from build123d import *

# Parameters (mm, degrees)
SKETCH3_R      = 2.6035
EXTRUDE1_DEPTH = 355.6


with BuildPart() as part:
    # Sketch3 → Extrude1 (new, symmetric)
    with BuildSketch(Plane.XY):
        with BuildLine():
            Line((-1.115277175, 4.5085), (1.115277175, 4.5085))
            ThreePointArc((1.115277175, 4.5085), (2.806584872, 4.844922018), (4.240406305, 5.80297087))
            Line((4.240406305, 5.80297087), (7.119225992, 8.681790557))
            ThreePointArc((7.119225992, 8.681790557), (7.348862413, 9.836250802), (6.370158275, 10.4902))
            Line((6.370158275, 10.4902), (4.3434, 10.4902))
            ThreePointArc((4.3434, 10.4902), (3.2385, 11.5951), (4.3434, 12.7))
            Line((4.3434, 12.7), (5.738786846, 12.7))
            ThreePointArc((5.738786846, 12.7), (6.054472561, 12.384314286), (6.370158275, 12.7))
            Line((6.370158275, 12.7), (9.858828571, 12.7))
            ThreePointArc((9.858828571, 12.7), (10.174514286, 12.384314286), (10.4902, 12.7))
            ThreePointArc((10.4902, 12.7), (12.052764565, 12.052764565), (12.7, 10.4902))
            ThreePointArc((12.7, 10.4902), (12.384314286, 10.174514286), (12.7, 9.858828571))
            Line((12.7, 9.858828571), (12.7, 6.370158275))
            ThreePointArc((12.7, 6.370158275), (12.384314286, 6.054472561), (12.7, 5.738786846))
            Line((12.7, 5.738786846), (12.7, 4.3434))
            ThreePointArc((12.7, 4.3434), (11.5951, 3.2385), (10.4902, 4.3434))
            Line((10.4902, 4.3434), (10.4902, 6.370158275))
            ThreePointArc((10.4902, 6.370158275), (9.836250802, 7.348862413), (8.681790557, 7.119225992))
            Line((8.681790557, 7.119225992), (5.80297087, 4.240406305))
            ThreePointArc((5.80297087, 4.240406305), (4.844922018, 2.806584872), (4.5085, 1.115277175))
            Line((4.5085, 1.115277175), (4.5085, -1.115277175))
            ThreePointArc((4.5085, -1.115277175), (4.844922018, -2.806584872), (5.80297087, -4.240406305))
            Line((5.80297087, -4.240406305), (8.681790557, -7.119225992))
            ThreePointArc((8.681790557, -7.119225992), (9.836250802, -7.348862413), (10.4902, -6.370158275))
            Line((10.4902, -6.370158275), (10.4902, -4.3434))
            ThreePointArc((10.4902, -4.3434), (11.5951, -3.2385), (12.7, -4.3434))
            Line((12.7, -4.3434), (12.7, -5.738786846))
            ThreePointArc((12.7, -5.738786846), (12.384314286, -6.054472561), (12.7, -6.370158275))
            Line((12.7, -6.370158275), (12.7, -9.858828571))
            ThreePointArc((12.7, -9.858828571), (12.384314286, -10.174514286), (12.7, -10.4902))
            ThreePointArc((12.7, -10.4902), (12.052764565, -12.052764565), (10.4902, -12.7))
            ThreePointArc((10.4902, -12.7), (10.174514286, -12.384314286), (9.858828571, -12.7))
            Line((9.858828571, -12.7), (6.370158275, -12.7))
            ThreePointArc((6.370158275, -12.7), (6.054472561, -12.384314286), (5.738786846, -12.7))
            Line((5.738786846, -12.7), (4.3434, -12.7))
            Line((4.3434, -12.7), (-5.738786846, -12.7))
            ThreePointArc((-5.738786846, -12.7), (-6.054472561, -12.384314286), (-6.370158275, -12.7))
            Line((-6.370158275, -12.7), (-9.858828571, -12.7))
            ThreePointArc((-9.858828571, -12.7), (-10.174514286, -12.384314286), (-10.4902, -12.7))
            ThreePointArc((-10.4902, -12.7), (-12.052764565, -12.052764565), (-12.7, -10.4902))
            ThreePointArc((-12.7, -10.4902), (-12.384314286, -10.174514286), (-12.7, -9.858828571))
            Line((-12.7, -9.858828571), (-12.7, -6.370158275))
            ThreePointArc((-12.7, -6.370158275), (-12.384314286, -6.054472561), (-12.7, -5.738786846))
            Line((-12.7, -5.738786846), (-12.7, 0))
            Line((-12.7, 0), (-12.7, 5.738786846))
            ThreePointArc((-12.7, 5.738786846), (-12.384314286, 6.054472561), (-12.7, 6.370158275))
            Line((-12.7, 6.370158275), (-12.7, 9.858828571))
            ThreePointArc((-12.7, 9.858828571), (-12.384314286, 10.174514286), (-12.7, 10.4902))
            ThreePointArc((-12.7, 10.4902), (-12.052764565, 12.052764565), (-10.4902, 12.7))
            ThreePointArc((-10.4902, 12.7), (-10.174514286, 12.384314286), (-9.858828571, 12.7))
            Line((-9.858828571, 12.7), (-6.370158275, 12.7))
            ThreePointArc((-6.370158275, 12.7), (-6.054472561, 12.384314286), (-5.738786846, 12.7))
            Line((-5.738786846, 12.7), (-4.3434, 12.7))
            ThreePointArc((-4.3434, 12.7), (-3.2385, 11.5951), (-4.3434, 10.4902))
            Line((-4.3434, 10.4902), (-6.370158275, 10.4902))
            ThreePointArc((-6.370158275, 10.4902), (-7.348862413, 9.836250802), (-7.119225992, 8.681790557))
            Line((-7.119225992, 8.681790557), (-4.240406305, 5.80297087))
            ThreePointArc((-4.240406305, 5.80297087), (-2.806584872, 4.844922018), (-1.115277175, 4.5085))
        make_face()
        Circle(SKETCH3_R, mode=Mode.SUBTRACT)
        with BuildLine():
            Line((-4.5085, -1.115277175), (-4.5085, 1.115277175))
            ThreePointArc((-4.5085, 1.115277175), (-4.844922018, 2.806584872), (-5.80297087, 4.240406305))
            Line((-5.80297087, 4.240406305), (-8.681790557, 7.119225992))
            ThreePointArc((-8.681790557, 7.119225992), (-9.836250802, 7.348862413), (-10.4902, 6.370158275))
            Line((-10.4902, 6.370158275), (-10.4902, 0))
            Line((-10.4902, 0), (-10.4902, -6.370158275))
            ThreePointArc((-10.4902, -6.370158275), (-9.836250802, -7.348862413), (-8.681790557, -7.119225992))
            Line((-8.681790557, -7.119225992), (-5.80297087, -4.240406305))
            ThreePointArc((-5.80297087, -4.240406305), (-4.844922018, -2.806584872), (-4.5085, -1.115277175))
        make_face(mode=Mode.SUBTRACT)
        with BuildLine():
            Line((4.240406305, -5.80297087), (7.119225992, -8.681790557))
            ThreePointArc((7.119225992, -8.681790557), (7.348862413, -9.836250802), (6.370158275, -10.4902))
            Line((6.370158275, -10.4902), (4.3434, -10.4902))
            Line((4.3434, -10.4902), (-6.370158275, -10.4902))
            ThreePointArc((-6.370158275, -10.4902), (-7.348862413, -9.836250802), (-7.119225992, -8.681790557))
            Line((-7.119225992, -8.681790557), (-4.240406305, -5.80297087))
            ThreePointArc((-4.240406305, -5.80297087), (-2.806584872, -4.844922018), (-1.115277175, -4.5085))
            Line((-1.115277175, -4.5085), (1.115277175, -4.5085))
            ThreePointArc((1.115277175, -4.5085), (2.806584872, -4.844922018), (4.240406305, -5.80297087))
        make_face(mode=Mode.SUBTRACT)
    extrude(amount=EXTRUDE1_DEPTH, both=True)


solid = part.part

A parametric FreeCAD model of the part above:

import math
import FreeCAD as App
import Part
import Sketcher
from FreeCAD import Vector
Q = App.Units.Quantity

doc = App.newDocument("Part")
body = doc.addObject("PartDesign::Body", "Body")

# Sketch on XY plane
sketch1 = body.newObject("Sketcher::SketchObject", "Sketch")
sketch1.AttachmentSupport = (doc.getObject("XY_Plane"), [""])
sketch1.MapMode = "FlatFace"
sketch1.addGeometry([
    Part.LineSegment(Vector(1.12, 4.51, 0), Vector(-1.12, 4.51, 0)),  # 0
    Part.ArcOfCircle(Part.Circle(Vector(-1.12, 8.93, 0), Vector(0, 0, 1), 4.42), math.radians(-135), math.radians(-90)),  # 1
    Part.LineSegment(Vector(-4.24, 5.8, 0), Vector(-7.12, 8.68, 0)),  # 2
    Part.ArcOfCircle(Part.Circle(Vector(-6.37, 9.43, 0), Vector(0, 0, 1), 1.06), math.radians(90), math.radians(225)),  # 3
    Part.LineSegment(Vector(-6.37, 10.49, 0), Vector(-4.34, 10.49, 0)),  # 4
    Part.ArcOfCircle(Part.Circle(Vector(-4.34, 11.6, 0), Vector(0, 0, 1), 1.1), math.radians(-90), math.radians(90)),  # 5
    Part.LineSegment(Vector(-4.34, 12.7, 0), Vector(-5.74, 12.7, 0)),  # 6
    Part.ArcOfCircle(Part.Circle(Vector(-6.05, 12.7, 0), Vector(0, 0, 1), 0.32), math.radians(-180), math.radians(0)),  # 7
    Part.LineSegment(Vector(-6.37, 12.7, 0), Vector(-9.86, 12.7, 0)),  # 8
    Part.ArcOfCircle(Part.Circle(Vector(-10.17, 12.7, 0), Vector(0, 0, 1), 0.32), math.radians(-180), math.radians(0)),  # 9
    Part.ArcOfCircle(Part.Circle(Vector(-10.49, 10.49, 0), Vector(0, 0, 1), 2.21), math.radians(90), math.radians(180)),  # 10
    Part.ArcOfCircle(Part.Circle(Vector(-12.7, 10.17, 0), Vector(0, 0, 1), 0.32), math.radians(-90), math.radians(90)),  # 11
    Part.LineSegment(Vector(-12.7, 9.86, 0), Vector(-12.7, 6.37, 0)),  # 12
    Part.ArcOfCircle(Part.Circle(Vector(-12.7, 6.05, 0), Vector(0, 0, 1), 0.32), math.radians(-90), math.radians(90)),  # 13
    Part.LineSegment(Vector(-12.7, 5.74, 0), Vector(-12.7, -5.74, 0)),  # 14
    Part.ArcOfCircle(Part.Circle(Vector(-12.7, -6.05, 0), Vector(0, 0, 1), 0.32), math.radians(-90), math.radians(90)),  # 15
    Part.LineSegment(Vector(-12.7, -6.37, 0), Vector(-12.7, -9.86, 0)),  # 16
    Part.ArcOfCircle(Part.Circle(Vector(-12.7, -10.17, 0), Vector(0, 0, 1), 0.32), math.radians(-90), math.radians(90)),  # 17
    Part.ArcOfCircle(Part.Circle(Vector(-10.49, -10.49, 0), Vector(0, 0, 1), 2.21), math.radians(180), math.radians(270)),  # 18
    Part.ArcOfCircle(Part.Circle(Vector(-10.17, -12.7, 0), Vector(0, 0, 1), 0.32), math.radians(0), math.radians(180)),  # 19
    Part.LineSegment(Vector(-9.86, -12.7, 0), Vector(-6.37, -12.7, 0)),  # 20
    Part.ArcOfCircle(Part.Circle(Vector(-6.05, -12.7, 0), Vector(0, 0, 1), 0.32), math.radians(0), math.radians(180)),  # 21
    Part.LineSegment(Vector(-5.74, -12.7, 0), Vector(5.74, -12.7, 0)),  # 22
    Part.ArcOfCircle(Part.Circle(Vector(6.05, -12.7, 0), Vector(0, 0, 1), 0.32), math.radians(0), math.radians(180)),  # 23
    Part.LineSegment(Vector(6.37, -12.7, 0), Vector(9.86, -12.7, 0)),  # 24
    Part.ArcOfCircle(Part.Circle(Vector(10.17, -12.7, 0), Vector(0, 0, 1), 0.32), math.radians(0), math.radians(180)),  # 25
    Part.ArcOfCircle(Part.Circle(Vector(10.49, -10.49, 0), Vector(0, 0, 1), 2.21), math.radians(-90), math.radians(0)),  # 26
    Part.ArcOfCircle(Part.Circle(Vector(12.7, -10.17, 0), Vector(0, 0, 1), 0.32), math.radians(90), math.radians(270)),  # 27
    Part.LineSegment(Vector(12.7, -9.86, 0), Vector(12.7, -6.37, 0)),  # 28
    Part.ArcOfCircle(Part.Circle(Vector(12.7, -6.05, 0), Vector(0, 0, 1), 0.32), math.radians(90), math.radians(270)),  # 29
    Part.LineSegment(Vector(12.7, -5.74, 0), Vector(12.7, -4.34, 0)),  # 30
    Part.ArcOfCircle(Part.Circle(Vector(11.6, -4.34, 0), Vector(0, 0, 1), 1.1), math.radians(0), math.radians(180)),  # 31
    Part.LineSegment(Vector(10.49, -4.34, 0), Vector(10.49, -6.37, 0)),  # 32
    Part.ArcOfCircle(Part.Circle(Vector(9.43, -6.37, 0), Vector(0, 0, 1), 1.06), math.radians(-135), math.radians(0)),  # 33
    Part.LineSegment(Vector(8.68, -7.12, 0), Vector(5.8, -4.24, 0)),  # 34
    Part.ArcOfCircle(Part.Circle(Vector(8.93, -1.12, 0), Vector(0, 0, 1), 4.42), math.radians(-180), math.radians(-135)),  # 35
    Part.LineSegment(Vector(4.51, -1.12, 0), Vector(4.51, 1.12, 0)),  # 36
    Part.ArcOfCircle(Part.Circle(Vector(8.93, 1.12, 0), Vector(0, 0, 1), 4.42), math.radians(135), math.radians(180)),  # 37
    Part.LineSegment(Vector(5.8, 4.24, 0), Vector(8.68, 7.12, 0)),  # 38
    Part.ArcOfCircle(Part.Circle(Vector(9.43, 6.37, 0), Vector(0, 0, 1), 1.06), math.radians(0), math.radians(135)),  # 39
    Part.LineSegment(Vector(10.49, 6.37, 0), Vector(10.49, 4.34, 0)),  # 40
    Part.ArcOfCircle(Part.Circle(Vector(11.6, 4.34, 0), Vector(0, 0, 1), 1.1), math.radians(180), math.radians(360)),  # 41
    Part.LineSegment(Vector(12.7, 4.34, 0), Vector(12.7, 5.74, 0)),  # 42
    Part.ArcOfCircle(Part.Circle(Vector(12.7, 6.05, 0), Vector(0, 0, 1), 0.32), math.radians(90), math.radians(270)),  # 43
    Part.LineSegment(Vector(12.7, 6.37, 0), Vector(12.7, 9.86, 0)),  # 44
    Part.ArcOfCircle(Part.Circle(Vector(12.7, 10.17, 0), Vector(0, 0, 1), 0.32), math.radians(90), math.radians(270)),  # 45
    Part.ArcOfCircle(Part.Circle(Vector(10.49, 10.49, 0), Vector(0, 0, 1), 2.21), math.radians(0), math.radians(90)),  # 46
    Part.ArcOfCircle(Part.Circle(Vector(10.17, 12.7, 0), Vector(0, 0, 1), 0.32), math.radians(-180), math.radians(0)),  # 47
    Part.LineSegment(Vector(9.86, 12.7, 0), Vector(6.37, 12.7, 0)),  # 48
    Part.ArcOfCircle(Part.Circle(Vector(6.05, 12.7, 0), Vector(0, 0, 1), 0.32), math.radians(-180), math.radians(0)),  # 49
    Part.LineSegment(Vector(5.74, 12.7, 0), Vector(4.34, 12.7, 0)),  # 50
    Part.ArcOfCircle(Part.Circle(Vector(4.34, 11.6, 0), Vector(0, 0, 1), 1.1), math.radians(90), math.radians(270)),  # 51
    Part.LineSegment(Vector(4.34, 10.49, 0), Vector(6.37, 10.49, 0)),  # 52
    Part.ArcOfCircle(Part.Circle(Vector(6.37, 9.43, 0), Vector(0, 0, 1), 1.06), math.radians(-45), math.radians(90)),  # 53
    Part.LineSegment(Vector(7.12, 8.68, 0), Vector(4.24, 5.8, 0)),  # 54
    Part.ArcOfCircle(Part.Circle(Vector(1.12, 8.93, 0), Vector(0, 0, 1), 4.42), math.radians(-90), math.radians(-45)),  # 55
    Part.LineSegment(Vector(4.24, -5.8, 0), Vector(7.12, -8.68, 0)),  # 56
    Part.ArcOfCircle(Part.Circle(Vector(6.37, -9.43, 0), Vector(0, 0, 1), 1.06), math.radians(-90), math.radians(45)),  # 57
    Part.LineSegment(Vector(6.37, -10.49, 0), Vector(-6.37, -10.49, 0)),  # 58
    Part.ArcOfCircle(Part.Circle(Vector(-6.37, -9.43, 0), Vector(0, 0, 1), 1.06), math.radians(135), math.radians(270)),  # 59
    Part.LineSegment(Vector(-7.12, -8.68, 0), Vector(-4.24, -5.8, 0)),  # 60
    Part.ArcOfCircle(Part.Circle(Vector(-1.12, -8.93, 0), Vector(0, 0, 1), 4.42), math.radians(90), math.radians(135)),  # 61
    Part.LineSegment(Vector(-1.12, -4.51, 0), Vector(1.12, -4.51, 0)),  # 62
    Part.ArcOfCircle(Part.Circle(Vector(1.12, -8.93, 0), Vector(0, 0, 1), 4.42), math.radians(45), math.radians(90)),  # 63
    Part.Circle(Vector(0, 0, 0), Vector(0, 0, 1), 2.6),  # 64
    Part.ArcOfCircle(Part.Circle(Vector(-8.93, -1.12, 0), Vector(0, 0, 1), 4.42), math.radians(-45), math.radians(0)),  # 65
    Part.LineSegment(Vector(-5.8, -4.24, 0), Vector(-8.68, -7.12, 0)),  # 66
    Part.ArcOfCircle(Part.Circle(Vector(-9.43, -6.37, 0), Vector(0, 0, 1), 1.06), math.radians(180), math.radians(315)),  # 67
    Part.LineSegment(Vector(-10.49, -6.37, 0), Vector(-10.49, 6.37, 0)),  # 68
    Part.ArcOfCircle(Part.Circle(Vector(-9.43, 6.37, 0), Vector(0, 0, 1), 1.06), math.radians(45), math.radians(180)),  # 69
    Part.LineSegment(Vector(-8.68, 7.12, 0), Vector(-5.8, 4.24, 0)),  # 70
    Part.ArcOfCircle(Part.Circle(Vector(-8.93, 1.12, 0), Vector(0, 0, 1), 4.42), math.radians(0), math.radians(45)),  # 71
    Part.LineSegment(Vector(-4.51, 1.12, 0), Vector(-4.51, -1.12, 0)),  # 72
], False)
sketch1.addConstraint([
    Sketcher.Constraint("Tangent", 0, 2, 1, 2),
    Sketcher.Constraint("Tangent", 1, 1, 2, 1),
    Sketcher.Constraint("Tangent", 2, 2, 3, 2),
    Sketcher.Constraint("Tangent", 3, 1, 4, 1),
    Sketcher.Constraint("Tangent", 4, 2, 5, 1),
    Sketcher.Constraint("Tangent", 5, 2, 6, 1),
    Sketcher.Constraint("Coincident", 6, 2, 7, 2),
    Sketcher.Constraint("Coincident", 7, 1, 8, 1),
    Sketcher.Constraint("Coincident", 8, 2, 9, 2),
    Sketcher.Constraint("Coincident", 9, 1, 10, 1),
    Sketcher.Constraint("Coincident", 10, 2, 11, 2),
    Sketcher.Constraint("Coincident", 11, 1, 12, 1),
    Sketcher.Constraint("Coincident", 12, 2, 13, 2),
    Sketcher.Constraint("Coincident", 13, 1, 14, 1),
    Sketcher.Constraint("Coincident", 14, 2, 15, 2),
    Sketcher.Constraint("Coincident", 15, 1, 16, 1),
    Sketcher.Constraint("Coincident", 16, 2, 17, 2),
    Sketcher.Constraint("Coincident", 17, 1, 18, 1),
    Sketcher.Constraint("Coincident", 18, 2, 19, 2),
    Sketcher.Constraint("Coincident", 19, 1, 20, 1),
    Sketcher.Constraint("Coincident", 20, 2, 21, 2),
    Sketcher.Constraint("Coincident", 21, 1, 22, 1),
    Sketcher.Constraint("Coincident", 22, 2, 23, 2),
    Sketcher.Constraint("Coincident", 23, 1, 24, 1),
    Sketcher.Constraint("Coincident", 24, 2, 25, 2),
    Sketcher.Constraint("Coincident", 25, 1, 26, 1),
    Sketcher.Constraint("Coincident", 26, 2, 27, 2),
    Sketcher.Constraint("Coincident", 27, 1, 28, 1),
    Sketcher.Constraint("Coincident", 28, 2, 29, 2),
    Sketcher.Constraint("Coincident", 29, 1, 30, 1),
    Sketcher.Constraint("Tangent", 30, 2, 31, 1),
    Sketcher.Constraint("Tangent", 31, 2, 32, 1),
    Sketcher.Constraint("Tangent", 32, 2, 33, 2),
    Sketcher.Constraint("Tangent", 33, 1, 34, 1),
    Sketcher.Constraint("Tangent", 34, 2, 35, 2),
    Sketcher.Constraint("Tangent", 35, 1, 36, 1),
    Sketcher.Constraint("Tangent", 36, 2, 37, 2),
    Sketcher.Constraint("Tangent", 37, 1, 38, 1),
    Sketcher.Constraint("Tangent", 38, 2, 39, 2),
    Sketcher.Constraint("Tangent", 39, 1, 40, 1),
    Sketcher.Constraint("Tangent", 40, 2, 41, 1),
    Sketcher.Constraint("Tangent", 41, 2, 42, 1),
    Sketcher.Constraint("Coincident", 42, 2, 43, 2),
    Sketcher.Constraint("Coincident", 43, 1, 44, 1),
    Sketcher.Constraint("Coincident", 44, 2, 45, 2),
    Sketcher.Constraint("Coincident", 45, 1, 46, 1),
    Sketcher.Constraint("Coincident", 46, 2, 47, 2),
    Sketcher.Constraint("Coincident", 47, 1, 48, 1),
    Sketcher.Constraint("Coincident", 48, 2, 49, 2),
    Sketcher.Constraint("Coincident", 49, 1, 50, 1),
    Sketcher.Constraint("Tangent", 50, 2, 51, 1),
    Sketcher.Constraint("Tangent", 51, 2, 52, 1),
    Sketcher.Constraint("Tangent", 52, 2, 53, 2),
    Sketcher.Constraint("Tangent", 53, 1, 54, 1),
    Sketcher.Constraint("Tangent", 54, 2, 55, 2),
    Sketcher.Constraint("Tangent", 55, 1, 0, 1),
    Sketcher.Constraint("Tangent", 56, 2, 57, 2),
    Sketcher.Constraint("Tangent", 57, 1, 58, 1),
    Sketcher.Constraint("Tangent", 58, 2, 59, 2),
    Sketcher.Constraint("Tangent", 59, 1, 60, 1),
    Sketcher.Constraint("Tangent", 60, 2, 61, 2),
    Sketcher.Constraint("Tangent", 61, 1, 62, 1),
    Sketcher.Constraint("Tangent", 62, 2, 63, 2),
    Sketcher.Constraint("Tangent", 63, 1, 56, 1),
    Sketcher.Constraint("Tangent", 65, 1, 66, 1),
    Sketcher.Constraint("Tangent", 66, 2, 67, 2),
    Sketcher.Constraint("Tangent", 67, 1, 68, 1),
    Sketcher.Constraint("Tangent", 68, 2, 69, 2),
    Sketcher.Constraint("Tangent", 69, 1, 70, 1),
    Sketcher.Constraint("Tangent", 70, 2, 71, 2),
    Sketcher.Constraint("Tangent", 71, 1, 72, 1),
    Sketcher.Constraint("Tangent", 72, 2, 65, 2),
    Sketcher.Constraint("Horizontal", 0),
    Sketcher.Constraint("Horizontal", 4),
    Sketcher.Constraint("Horizontal", 6),
    Sketcher.Constraint("Horizontal", 8),
    Sketcher.Constraint("Vertical", 12),
    Sketcher.Constraint("Vertical", 14),
    Sketcher.Constraint("Vertical", 16),
    Sketcher.Constraint("Horizontal", 20),
    Sketcher.Constraint("Horizontal", 22),
    Sketcher.Constraint("Horizontal", 24),
    Sketcher.Constraint("Vertical", 28),
    Sketcher.Constraint("Vertical", 30),
    Sketcher.Constraint("Vertical", 32),
    Sketcher.Constraint("Vertical", 36),
    Sketcher.Constraint("Vertical", 40),
    Sketcher.Constraint("Vertical", 42),
    Sketcher.Constraint("Vertical", 44),
    Sketcher.Constraint("Horizontal", 48),
    Sketcher.Constraint("Horizontal", 50),
    Sketcher.Constraint("Horizontal", 52),
    Sketcher.Constraint("Horizontal", 58),
    Sketcher.Constraint("Horizontal", 62),
    Sketcher.Constraint("Vertical", 68),
    Sketcher.Constraint("Vertical", 72),
    Sketcher.Constraint("Coincident", 64, 3, -1, 1),
    Sketcher.Constraint("Equal", 7, 9),
    Sketcher.Constraint("Equal", 9, 11),
    Sketcher.Constraint("Equal", 11, 13),
    Sketcher.Constraint("Equal", 13, 15),
    Sketcher.Constraint("Equal", 15, 17),
    Sketcher.Constraint("Equal", 10, 18),
    Sketcher.Constraint("Equal", 17, 19),
    Sketcher.Constraint("Equal", 19, 21),
    Sketcher.Constraint("Equal", 21, 23),
    Sketcher.Constraint("Equal", 23, 25),
    Sketcher.Constraint("Equal", 18, 26),
    Sketcher.Constraint("Equal", 25, 27),
    Sketcher.Constraint("Equal", 27, 29),
    Sketcher.Constraint("Equal", 5, 31),
    Sketcher.Constraint("Equal", 3, 33),
    Sketcher.Constraint("Equal", 1, 35),
    Sketcher.Constraint("Equal", 35, 37),
    Sketcher.Constraint("Equal", 33, 39),
    Sketcher.Constraint("Equal", 31, 41),
    Sketcher.Constraint("Equal", 29, 43),
    Sketcher.Constraint("Equal", 43, 45),
    Sketcher.Constraint("Equal", 26, 46),
    Sketcher.Constraint("Equal", 45, 47),
    Sketcher.Constraint("Equal", 47, 49),
    Sketcher.Constraint("Equal", 41, 51),
    Sketcher.Constraint("Equal", 39, 53),
    Sketcher.Constraint("Equal", 37, 55),
    Sketcher.Constraint("Equal", 53, 57),
    Sketcher.Constraint("Equal", 57, 59),
    Sketcher.Constraint("Equal", 55, 61),
    Sketcher.Constraint("Equal", 61, 63),
    Sketcher.Constraint("Equal", 63, 65),
    Sketcher.Constraint("Equal", 59, 67),
    Sketcher.Constraint("Equal", 67, 69),
    Sketcher.Constraint("Equal", 65, 71),
    Sketcher.Constraint("Symmetric", 7, 3, 23, 3, -1, 1),
    Sketcher.Constraint("Symmetric", 9, 3, 25, 3, -1, 1),
    Sketcher.Constraint("Symmetric", 10, 3, 26, 3, -1, 1),
    Sketcher.Constraint("Symmetric", 11, 3, 27, 3, -1, 1),
    Sketcher.Constraint("Symmetric", 13, 3, 29, 3, -1, 1),
    Sketcher.Constraint("Symmetric", 15, 3, 43, 3, -1, 1),
    Sketcher.Constraint("Symmetric", 17, 3, 45, 3, -1, 1),
    Sketcher.Constraint("Symmetric", 18, 3, 46, 3, -1, 1),
    Sketcher.Constraint("Symmetric", 19, 3, 47, 3, -1, 1),
    Sketcher.Constraint("Symmetric", 21, 3, 49, 3, -1, 1),
    Sketcher.Constraint("Symmetric", 3, 3, 57, 3, -1, 1),
    Sketcher.Constraint("Symmetric", 53, 3, 59, 3, -1, 1),
    Sketcher.Constraint("Symmetric", 55, 3, 61, 3, -1, 1),
    Sketcher.Constraint("Symmetric", 37, 3, 65, 3, -1, 1),
    Sketcher.Constraint("Symmetric", 39, 3, 67, 3, -1, 1),
    Sketcher.Constraint("Symmetric", 33, 3, 69, 3, -1, 1),
    Sketcher.Constraint("Symmetric", 21, 3, 23, 3, -2),
    Sketcher.Constraint("Symmetric", 19, 3, 25, 3, -2),
    Sketcher.Constraint("Symmetric", 18, 3, 26, 3, -2),
    Sketcher.Constraint("Symmetric", 17, 3, 27, 3, -2),
    Sketcher.Constraint("Symmetric", 15, 3, 29, 3, -2),
    Sketcher.Constraint("Symmetric", 2, 2, 53, 1, -2),
    Sketcher.Constraint("Symmetric", 34, 2, 65, 1, -2),
    Sketcher.Constraint("Parallel", 2, 34),
    Sketcher.Constraint("Perpendicular", 34, 38),
    Sketcher.Constraint("Perpendicular", 54, 56),
    Sketcher.Constraint("Perpendicular", 66, 70),
    Sketcher.Constraint("Horizontal", 7, 3, 9, 3),
    Sketcher.Constraint("Horizontal", 46, 3, 3, 1),
    Sketcher.Constraint("Horizontal", 49, 3, 5, 2),
    Sketcher.Constraint("Horizontal", 6, 2, 7, 1),
    Sketcher.Constraint("Horizontal", 8, 2, 9, 1),
    Sketcher.Constraint("Horizontal", 4, 2, 10, 2),
    Sketcher.Constraint("Horizontal", 69, 3, 12, 2),
    Sketcher.Constraint("Horizontal", 18, 2, 19, 1),
    Sketcher.Constraint("Horizontal", 20, 2, 21, 1),
    Sketcher.Constraint("Horizontal", 22, 2, 23, 1),
    Sketcher.Constraint("Horizontal", 46, 2, 47, 1),
    Sketcher.Constraint("Vertical", 11, 3, 13, 3),
    Sketcher.Constraint("Vertical", 3, 1, 7, 1),
    Sketcher.Constraint("Vertical", 18, 3, 9, 1),
    Sketcher.Constraint("Vertical", 17, 3, 10, 2),
    Sketcher.Constraint("Vertical", 10, 2, 11, 1),
    Sketcher.Constraint("Vertical", 12, 2, 13, 1),
    Sketcher.Constraint("Vertical", 14, 2, 15, 1),
    Sketcher.Constraint("Vertical", 26, 2, 27, 1),
    Sketcher.Constraint("Vertical", 28, 2, 29, 1),
    Sketcher.Constraint("Vertical", 42, 2, 43, 1),
    Sketcher.Constraint("Equal", 6, 50),
    Sketcher.Constraint("Equal", 48, 12),
    Sketcher.Constraint("Equal", 22, 14),
    Sketcher.Constraint("Equal", 50, 30),
    Sketcher.Constraint("Equal", 62, 36),
    Sketcher.Constraint("Equal", 32, 40),
    Sketcher.Constraint("Diameter", 64, Q("0.205 in")),
    Sketcher.Constraint("Radius", 1, Q("0.174 in")),
    Sketcher.Constraint("Radius", 10, Q("0.087 in")),
    Sketcher.Constraint("DistanceY", -1, 1, 7, 3, Q("0.5 in")),
    Sketcher.Constraint("DistanceX", 5, 3, -1, 1, Q("0.171 in")),
    Sketcher.Constraint("Radius", 3, 1.059342),
    Sketcher.Constraint("DistanceY", -1, 1, 1, 3, Q("0.3515 in")),
    Sketcher.Constraint("Radius", 7, 0.315686),
    Sketcher.Constraint("DistanceX", 4, 1, 4, 2, 2.026758),
])
pad1 = body.newObject("PartDesign::Pad", "Pad")
pad1.Profile = sketch1
pad1.Length = Q("28 in")
pad1.Midplane = True

doc.recompute()
